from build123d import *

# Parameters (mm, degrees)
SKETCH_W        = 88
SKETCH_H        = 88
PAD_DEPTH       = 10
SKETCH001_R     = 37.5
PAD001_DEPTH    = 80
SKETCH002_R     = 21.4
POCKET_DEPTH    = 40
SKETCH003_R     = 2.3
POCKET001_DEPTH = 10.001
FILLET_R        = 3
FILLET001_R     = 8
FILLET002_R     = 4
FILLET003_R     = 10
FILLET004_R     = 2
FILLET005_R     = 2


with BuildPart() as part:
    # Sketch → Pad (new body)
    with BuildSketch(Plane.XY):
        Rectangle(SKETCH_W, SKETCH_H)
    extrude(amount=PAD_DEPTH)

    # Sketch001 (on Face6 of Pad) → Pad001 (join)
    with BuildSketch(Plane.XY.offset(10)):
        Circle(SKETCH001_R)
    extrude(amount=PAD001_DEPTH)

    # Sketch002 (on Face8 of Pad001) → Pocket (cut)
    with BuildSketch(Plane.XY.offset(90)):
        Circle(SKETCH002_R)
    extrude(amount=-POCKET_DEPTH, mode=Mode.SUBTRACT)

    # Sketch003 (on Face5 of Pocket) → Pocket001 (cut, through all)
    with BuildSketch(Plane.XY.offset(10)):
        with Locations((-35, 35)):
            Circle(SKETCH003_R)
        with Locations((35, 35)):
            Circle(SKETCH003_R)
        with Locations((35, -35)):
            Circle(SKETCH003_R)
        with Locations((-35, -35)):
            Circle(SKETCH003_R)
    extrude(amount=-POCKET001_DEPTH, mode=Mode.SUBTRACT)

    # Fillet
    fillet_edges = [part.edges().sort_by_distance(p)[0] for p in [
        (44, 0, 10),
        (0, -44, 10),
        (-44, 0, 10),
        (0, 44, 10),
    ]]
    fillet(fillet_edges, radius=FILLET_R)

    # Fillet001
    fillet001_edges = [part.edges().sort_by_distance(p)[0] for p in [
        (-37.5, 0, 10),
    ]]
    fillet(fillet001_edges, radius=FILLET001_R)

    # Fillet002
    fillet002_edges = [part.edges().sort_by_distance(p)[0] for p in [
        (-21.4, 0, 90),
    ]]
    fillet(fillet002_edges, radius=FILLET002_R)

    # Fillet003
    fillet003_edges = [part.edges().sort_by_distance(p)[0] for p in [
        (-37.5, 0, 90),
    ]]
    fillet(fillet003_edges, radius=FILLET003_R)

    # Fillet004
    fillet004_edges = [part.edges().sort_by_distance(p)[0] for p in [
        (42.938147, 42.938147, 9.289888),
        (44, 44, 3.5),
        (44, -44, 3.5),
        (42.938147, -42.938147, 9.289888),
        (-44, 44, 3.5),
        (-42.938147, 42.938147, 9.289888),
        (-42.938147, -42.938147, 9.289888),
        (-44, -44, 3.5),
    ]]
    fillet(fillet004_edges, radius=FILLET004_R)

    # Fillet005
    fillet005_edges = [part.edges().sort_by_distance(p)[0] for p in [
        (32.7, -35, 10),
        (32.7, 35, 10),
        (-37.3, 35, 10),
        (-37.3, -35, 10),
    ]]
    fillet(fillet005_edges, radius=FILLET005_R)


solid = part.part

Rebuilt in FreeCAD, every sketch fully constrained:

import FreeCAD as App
import Part
import Sketcher

V = App.Vector
Q = App.Units.Quantity


def edges_at(feature, points):
    """Names of the edges that pass closest to the given points."""
    edges = feature.Shape.Edges
    near = lambda p: min(range(len(edges)), key=lambda i: edges[i].distToShape(Part.Vertex(*p))[0])
    return sorted({f"Edge{near(p) + 1}" for p in points})


def add_polygon(sketch, points):
    """Adds a closed chain of lines whose ends are joined by coincident constraints."""
    first, n = sketch.GeometryCount, len(points)
    for a, b in zip(points, points[1:] + points[:1]):
        sketch.addGeometry(Part.LineSegment(App.Vector(*a, 0), App.Vector(*b, 0)), False)
    for i in range(n):
        sketch.addConstraint(Sketcher.Constraint("Coincident", first + i, 2, first + (i + 1) % n, 1))

doc = App.newDocument("Part")
body = doc.addObject("PartDesign::Body", "Body")

# Sketch on XY plane
sketch1 = body.newObject("Sketcher::SketchObject", "Sketch")
sketch1.AttachmentSupport = (doc.getObject("XY_Plane"), [""])
sketch1.MapMode = "FlatFace"
add_polygon(sketch1, [(-44, 44), (-44, -44), (44, -44), (44, 44)])  # lines 0-3
sketch1.addConstraint(Sketcher.Constraint("Vertical", 0))
sketch1.addConstraint(Sketcher.Constraint("Horizontal", 1))
sketch1.addConstraint(Sketcher.Constraint("Vertical", 2))
sketch1.addConstraint(Sketcher.Constraint("Horizontal", 3))
sketch1.addConstraint(Sketcher.Constraint("Symmetric", 0, 2, 2, 2, -1, 1))
sketch1.addConstraint(Sketcher.Constraint("Equal", 3, 0))
sketch1.addConstraint(Sketcher.Constraint("DistanceX", 1, 1, 1, 2, Q("88 mm")))
pad1 = body.newObject("PartDesign::Pad", "Pad")
pad1.Profile = sketch1
pad1.Length = 10

# Sketch on XY plane
sketch2 = body.newObject("Sketcher::SketchObject", "Sketch001")
sketch2.AttachmentSupport = (doc.getObject("XY_Plane"), [""])
sketch2.MapMode = "FlatFace"
sketch2.AttachmentOffset = App.Placement(V(0, 0, 10), App.Rotation())
sketch2.addGeometry(Part.Circle(V(0, 0, 0), V(0, 0, 1), 38), False)
sketch2.addConstraint(Sketcher.Constraint("Coincident", 0, 3, -1, 1))
sketch2.addConstraint(Sketcher.Constraint("Diameter", 0, Q("75 mm")))
pad2 = body.newObject("PartDesign::Pad", "Pad001")
pad2.Profile = sketch2
pad2.Length = 80

# Sketch on XY plane
sketch3 = body.newObject("Sketcher::SketchObject", "Sketch002")
sketch3.AttachmentSupport = (doc.getObject("XY_Plane"), [""])
sketch3.MapMode = "FlatFace"
sketch3.AttachmentOffset = App.Placement(V(0, 0, 90), App.Rotation())
sketch3.addGeometry(Part.Circle(V(0, 0, 0), V(0, 0, 1), 21), False)
sketch3.addConstraint(Sketcher.Constraint("Coincident", 0, 3, -1, 1))
sketch3.addConstraint(Sketcher.Constraint("Diameter", 0, Q("42.8 mm")))
pocket1 = body.newObject("PartDesign::Pocket", "Pocket")
pocket1.Profile = sketch3
pocket1.Length = 40

# Sketch on XY plane
sketch4 = body.newObject("Sketcher::SketchObject", "Sketch003")
sketch4.AttachmentSupport = (doc.getObject("XY_Plane"), [""])
sketch4.MapMode = "FlatFace"
sketch4.AttachmentOffset = App.Placement(V(0, 0, 10), App.Rotation())
sketch4.addGeometry(Part.Circle(V(-35, 35, 0), V(0, 0, 1), 2.3), False)
sketch4.addGeometry(Part.Circle(V(35, 35, 0), V(0, 0, 1), 2.3), False)
sketch4.addGeometry(Part.Circle(V(35, -35, 0), V(0, 0, 1), 2.3), False)
sketch4.addGeometry(Part.Circle(V(-35, -35, 0), V(0, 0, 1), 2.3), False)
sketch4.addConstraint(Sketcher.Constraint("Equal", 0, 1))
sketch4.addConstraint(Sketcher.Constraint("Equal", 1, 2))
sketch4.addConstraint(Sketcher.Constraint("Equal", 2, 3))
sketch4.addConstraint(Sketcher.Constraint("Symmetric", 0, 3, 2, 3, -1, 1))
sketch4.addConstraint(Sketcher.Constraint("Symmetric", 1, 3, 3, 3, -1, 1))
sketch4.addConstraint(Sketcher.Constraint("Symmetric", 0, 3, 1, 3, -2))
sketch4.addConstraint(Sketcher.Constraint("Diameter", 0, Q("4.6 mm")))
sketch4.addConstraint(Sketcher.Constraint("DistanceX", 0, 3, -1, 1, Q("35 mm")))
sketch4.addConstraint(Sketcher.Constraint("DistanceY", -1, 1, 0, 3, Q("35 mm")))
pocket2 = body.newObject("PartDesign::Pocket", "Pocket001")
pocket2.Profile = sketch4
pocket2.Type = "ThroughAll"
doc.recompute()

fillet = body.newObject("PartDesign::Fillet", "Fillet")
fillet.Base = (pocket2, edges_at(pocket2, [
    (44, 0, 10),
    (0, -44, 10),
    (-44, 0, 10),
    (0, 44, 10),
]))
fillet.Radius = 3
doc.recompute()

fillet2 = body.newObject("PartDesign::Fillet", "Fillet001")
fillet2.Base = (fillet, edges_at(fillet, [(-37.5, 0, 10)]))
fillet2.Radius = 8
doc.recompute()

fillet3 = body.newObject("PartDesign::Fillet", "Fillet002")
fillet3.Base = (fillet2, edges_at(fillet2, [(-21.4, 0, 90)]))
fillet3.Radius = 4
doc.recompute()

fillet4 = body.newObject("PartDesign::Fillet", "Fillet003")
fillet4.Base = (fillet3, edges_at(fillet3, [(-37.5, 0, 90)]))
fillet4.Radius = 10
doc.recompute()

fillet5 = body.newObject("PartDesign::Fillet", "Fillet004")
fillet5.Base = (fillet4, edges_at(fillet4, [
    (42.938, 42.938, 9.29),
    (44, 44, 3.5),
    (44, -44, 3.5),
    (42.938, -42.938, 9.29),
    (-44, 44, 3.5),
    (-42.938, 42.938, 9.29),
    (-42.938, -42.938, 9.29),
    (-44, -44, 3.5),
]))
fillet5.Radius = 2
doc.recompute()

fillet6 = body.newObject("PartDesign::Fillet", "Fillet005")
fillet6.Base = (fillet5, edges_at(fillet5, [
    (32.7, -35, 10),
    (32.7, 35, 10),
    (-37.3, 35, 10),
    (-37.3, -35, 10),
]))
fillet6.Radius = 2

doc.recompute()
